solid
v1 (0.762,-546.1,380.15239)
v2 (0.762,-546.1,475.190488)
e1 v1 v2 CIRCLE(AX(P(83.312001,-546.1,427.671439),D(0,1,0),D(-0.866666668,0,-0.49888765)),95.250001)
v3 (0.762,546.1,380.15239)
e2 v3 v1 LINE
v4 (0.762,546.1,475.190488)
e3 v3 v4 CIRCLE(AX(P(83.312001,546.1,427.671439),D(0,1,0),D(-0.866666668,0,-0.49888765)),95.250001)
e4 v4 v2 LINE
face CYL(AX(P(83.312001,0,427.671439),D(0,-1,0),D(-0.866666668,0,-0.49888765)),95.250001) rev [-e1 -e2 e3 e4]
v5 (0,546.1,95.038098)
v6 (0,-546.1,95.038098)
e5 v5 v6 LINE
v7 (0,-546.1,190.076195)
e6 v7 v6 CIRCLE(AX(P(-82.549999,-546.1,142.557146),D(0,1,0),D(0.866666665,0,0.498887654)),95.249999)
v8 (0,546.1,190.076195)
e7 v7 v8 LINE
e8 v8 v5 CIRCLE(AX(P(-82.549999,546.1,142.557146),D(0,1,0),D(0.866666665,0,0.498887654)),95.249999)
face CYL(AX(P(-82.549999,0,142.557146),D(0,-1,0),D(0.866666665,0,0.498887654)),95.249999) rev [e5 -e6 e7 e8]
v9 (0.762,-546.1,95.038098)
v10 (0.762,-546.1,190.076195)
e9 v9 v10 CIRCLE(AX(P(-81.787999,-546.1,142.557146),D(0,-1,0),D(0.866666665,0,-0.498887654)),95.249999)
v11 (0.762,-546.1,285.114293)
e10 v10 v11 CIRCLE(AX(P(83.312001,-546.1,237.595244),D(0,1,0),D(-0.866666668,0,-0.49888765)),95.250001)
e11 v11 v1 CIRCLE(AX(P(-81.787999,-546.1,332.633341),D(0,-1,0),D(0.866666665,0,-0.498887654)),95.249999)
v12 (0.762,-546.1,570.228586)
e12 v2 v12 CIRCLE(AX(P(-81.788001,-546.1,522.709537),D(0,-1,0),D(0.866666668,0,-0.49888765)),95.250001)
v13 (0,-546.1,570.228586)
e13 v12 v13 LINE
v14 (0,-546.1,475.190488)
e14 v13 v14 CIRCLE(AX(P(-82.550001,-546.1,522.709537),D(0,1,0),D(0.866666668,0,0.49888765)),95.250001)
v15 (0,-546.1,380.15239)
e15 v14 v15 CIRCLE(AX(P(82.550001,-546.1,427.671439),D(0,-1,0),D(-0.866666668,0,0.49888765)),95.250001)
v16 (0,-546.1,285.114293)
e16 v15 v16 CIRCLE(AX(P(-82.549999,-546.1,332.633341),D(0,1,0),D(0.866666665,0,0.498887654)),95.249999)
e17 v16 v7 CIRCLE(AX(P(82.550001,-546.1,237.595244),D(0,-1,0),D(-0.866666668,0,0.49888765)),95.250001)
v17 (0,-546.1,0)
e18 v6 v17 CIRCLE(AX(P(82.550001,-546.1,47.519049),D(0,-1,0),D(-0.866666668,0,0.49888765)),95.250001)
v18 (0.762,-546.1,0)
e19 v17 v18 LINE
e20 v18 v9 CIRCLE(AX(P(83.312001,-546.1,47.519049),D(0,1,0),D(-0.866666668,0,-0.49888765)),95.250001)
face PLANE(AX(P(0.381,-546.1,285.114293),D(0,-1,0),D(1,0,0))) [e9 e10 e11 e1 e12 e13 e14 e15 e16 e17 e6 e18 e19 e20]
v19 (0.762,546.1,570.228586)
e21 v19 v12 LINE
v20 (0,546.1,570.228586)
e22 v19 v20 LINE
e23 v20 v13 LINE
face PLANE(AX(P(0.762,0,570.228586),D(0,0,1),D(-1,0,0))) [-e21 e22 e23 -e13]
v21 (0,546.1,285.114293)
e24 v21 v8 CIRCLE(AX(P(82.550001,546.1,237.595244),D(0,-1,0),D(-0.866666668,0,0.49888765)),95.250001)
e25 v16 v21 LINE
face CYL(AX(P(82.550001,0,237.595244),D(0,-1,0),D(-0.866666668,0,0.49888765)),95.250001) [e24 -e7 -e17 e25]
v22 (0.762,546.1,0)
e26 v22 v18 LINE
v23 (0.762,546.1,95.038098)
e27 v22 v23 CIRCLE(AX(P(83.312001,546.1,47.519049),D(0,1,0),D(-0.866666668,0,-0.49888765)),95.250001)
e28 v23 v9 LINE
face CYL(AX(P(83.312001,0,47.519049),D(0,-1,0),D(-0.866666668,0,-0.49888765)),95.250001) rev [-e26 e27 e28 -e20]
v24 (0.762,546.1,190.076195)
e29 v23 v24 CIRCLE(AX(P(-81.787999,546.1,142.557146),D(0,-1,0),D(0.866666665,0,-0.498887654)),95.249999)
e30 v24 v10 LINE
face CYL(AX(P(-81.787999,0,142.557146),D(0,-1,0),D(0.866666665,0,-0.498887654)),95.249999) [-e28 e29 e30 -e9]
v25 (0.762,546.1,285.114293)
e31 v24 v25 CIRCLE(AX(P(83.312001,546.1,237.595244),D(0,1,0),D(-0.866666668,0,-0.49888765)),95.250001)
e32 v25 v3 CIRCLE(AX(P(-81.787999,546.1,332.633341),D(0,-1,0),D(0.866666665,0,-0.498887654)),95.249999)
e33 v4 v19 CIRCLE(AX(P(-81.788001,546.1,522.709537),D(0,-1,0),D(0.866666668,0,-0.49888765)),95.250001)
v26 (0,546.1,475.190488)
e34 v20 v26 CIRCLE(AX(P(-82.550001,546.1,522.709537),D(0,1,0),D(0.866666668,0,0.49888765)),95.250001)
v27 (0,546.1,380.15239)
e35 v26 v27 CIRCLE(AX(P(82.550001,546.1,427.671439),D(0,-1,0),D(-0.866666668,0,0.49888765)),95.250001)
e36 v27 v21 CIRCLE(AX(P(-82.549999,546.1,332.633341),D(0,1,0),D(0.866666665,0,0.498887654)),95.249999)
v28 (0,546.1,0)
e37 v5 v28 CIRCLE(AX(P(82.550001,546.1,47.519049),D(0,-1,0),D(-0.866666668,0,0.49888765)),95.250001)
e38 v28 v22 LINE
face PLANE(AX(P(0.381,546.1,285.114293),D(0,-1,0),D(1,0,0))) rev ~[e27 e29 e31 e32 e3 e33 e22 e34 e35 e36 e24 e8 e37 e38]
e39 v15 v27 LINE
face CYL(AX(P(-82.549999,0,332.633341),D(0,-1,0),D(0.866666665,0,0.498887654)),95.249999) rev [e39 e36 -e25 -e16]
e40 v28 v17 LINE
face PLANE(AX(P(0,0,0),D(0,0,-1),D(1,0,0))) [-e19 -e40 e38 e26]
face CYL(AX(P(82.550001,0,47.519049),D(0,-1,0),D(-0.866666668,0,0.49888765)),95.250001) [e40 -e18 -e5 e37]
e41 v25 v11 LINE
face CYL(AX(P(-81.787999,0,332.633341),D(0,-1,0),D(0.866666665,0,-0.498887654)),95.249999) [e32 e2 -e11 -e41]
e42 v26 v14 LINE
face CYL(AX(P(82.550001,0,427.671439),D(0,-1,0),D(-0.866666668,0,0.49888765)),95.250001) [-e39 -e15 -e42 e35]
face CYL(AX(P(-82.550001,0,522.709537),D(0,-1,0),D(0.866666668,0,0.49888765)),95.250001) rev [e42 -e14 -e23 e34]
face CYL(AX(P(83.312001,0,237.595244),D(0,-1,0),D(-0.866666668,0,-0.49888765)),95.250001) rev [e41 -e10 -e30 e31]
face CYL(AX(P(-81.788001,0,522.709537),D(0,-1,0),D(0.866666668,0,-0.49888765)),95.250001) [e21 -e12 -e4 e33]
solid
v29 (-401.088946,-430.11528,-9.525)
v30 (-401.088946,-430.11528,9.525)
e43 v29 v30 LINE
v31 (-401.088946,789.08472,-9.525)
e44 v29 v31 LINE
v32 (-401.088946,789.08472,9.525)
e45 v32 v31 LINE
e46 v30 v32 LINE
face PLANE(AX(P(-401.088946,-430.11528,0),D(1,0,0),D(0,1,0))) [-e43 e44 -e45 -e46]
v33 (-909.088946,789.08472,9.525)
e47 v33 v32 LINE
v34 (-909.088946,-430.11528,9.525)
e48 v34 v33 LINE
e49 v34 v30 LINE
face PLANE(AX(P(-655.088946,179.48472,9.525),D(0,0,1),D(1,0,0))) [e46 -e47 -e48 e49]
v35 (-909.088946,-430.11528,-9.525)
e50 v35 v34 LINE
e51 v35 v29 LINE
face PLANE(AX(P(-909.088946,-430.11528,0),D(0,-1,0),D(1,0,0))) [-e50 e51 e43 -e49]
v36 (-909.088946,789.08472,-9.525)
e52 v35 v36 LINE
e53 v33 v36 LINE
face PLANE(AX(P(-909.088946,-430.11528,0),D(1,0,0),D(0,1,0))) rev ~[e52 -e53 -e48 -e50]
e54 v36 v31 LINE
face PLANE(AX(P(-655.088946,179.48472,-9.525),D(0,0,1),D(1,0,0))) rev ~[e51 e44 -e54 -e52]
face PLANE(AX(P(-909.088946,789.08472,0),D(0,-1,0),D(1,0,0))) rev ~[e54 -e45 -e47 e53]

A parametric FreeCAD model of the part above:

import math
import FreeCAD as App
import Part
import Sketcher
from FreeCAD import Vector
Q = App.Units.Quantity

doc = App.newDocument("Part")
body = doc.addObject("PartDesign::Body", "Body")

sketch1 = body.newObject("Sketcher::SketchObject", "Sketch")
sketch1.AttachmentSupport = (doc.getObject("XZ_Plane"), [""])
sketch1.MapMode = "FlatFace"
sketch1.addGeometry([
    Part.ArcOfCircle(Part.Circle(Vector(-82.5, 142.6, 0), Vector(0, 0, 1), 95.2), math.radians(-30), math.radians(30)),
    Part.ArcOfCircle(Part.Circle(Vector(82.6, 47.5, 0), Vector(0, 0, 1), 95.3), math.radians(150), math.radians(210)),
    Part.LineSegment(Vector(0, 0, 0), Vector(0.8, 0, 0)),
    Part.ArcOfCircle(Part.Circle(Vector(83.3, 47.5, 0), Vector(0, 0, 1), 95.3), math.radians(150), math.radians(210)),
    Part.ArcOfCircle(Part.Circle(Vector(-81.8, 142.6, 0), Vector(0, 0, 1), 95.2), math.radians(-30), math.radians(30)),
    Part.ArcOfCircle(Part.Circle(Vector(83.3, 237.6, 0), Vector(0, 0, 1), 95.3), math.radians(150), math.radians(210)),
    Part.ArcOfCircle(Part.Circle(Vector(-81.8, 332.6, 0), Vector(0, 0, 1), 95.2), math.radians(-30), math.radians(30)),
    Part.ArcOfCircle(Part.Circle(Vector(83.3, 427.7, 0), Vector(0, 0, 1), 95.3), math.radians(150), math.radians(210)),
    Part.ArcOfCircle(Part.Circle(Vector(-81.8, 522.7, 0), Vector(0, 0, 1), 95.3), math.radians(-30), math.radians(30)),
    Part.LineSegment(Vector(0.8, 570.2, 0), Vector(0, 570.2, 0)),
    Part.ArcOfCircle(Part.Circle(Vector(-82.6, 522.7, 0), Vector(0, 0, 1), 95.3), math.radians(-30), math.radians(30)),
    Part.ArcOfCircle(Part.Circle(Vector(82.6, 427.7, 0), Vector(0, 0, 1), 95.3), math.radians(150), math.radians(210)),
    Part.ArcOfCircle(Part.Circle(Vector(-82.5, 332.6, 0), Vector(0, 0, 1), 95.2), math.radians(-30), math.radians(30)),
    Part.ArcOfCircle(Part.Circle(Vector(82.6, 237.6, 0), Vector(0, 0, 1), 95.3), math.radians(150), math.radians(210)),
], False)
sketch1.addConstraint([
    Sketcher.Constraint("Tangent", 0, 1, 1, 1),
    Sketcher.Constraint("Coincident", 1, 2, 2, 1),
    Sketcher.Constraint("Coincident", 2, 2, 3, 2),
    Sketcher.Constraint("Tangent", 3, 1, 4, 1),
    Sketcher.Constraint("Tangent", 4, 2, 5, 2),
    Sketcher.Constraint("Tangent", 5, 1, 6, 1),
    Sketcher.Constraint("Tangent", 6, 2, 7, 2),
    Sketcher.Constraint("Tangent", 7, 1, 8, 1),
    Sketcher.Constraint("Coincident", 8, 2, 9, 1),
    Sketcher.Constraint("Coincident", 9, 2, 10, 2),
    Sketcher.Constraint("Tangent", 10, 1, 11, 1),
    Sketcher.Constraint("Tangent", 11, 2, 12, 2),
    Sketcher.Constraint("Tangent", 12, 1, 13, 1),
    Sketcher.Constraint("Tangent", 13, 2, 0, 2),
    Sketcher.Constraint("Horizontal", 2),
    Sketcher.Constraint("Horizontal", 9),
    Sketcher.Constraint("Coincident", 1, 2, -1, 1),
    Sketcher.Constraint("Equal", 0, 1),
    Sketcher.Constraint("Equal", 1, 3),
    Sketcher.Constraint("Equal", 3, 4),
    Sketcher.Constraint("Equal", 4, 5),
    Sketcher.Constraint("Equal", 5, 6),
    Sketcher.Constraint("Equal", 6, 7),
    Sketcher.Constraint("Equal", 7, 8),
    Sketcher.Constraint("Equal", 8, 10),
    Sketcher.Constraint("Equal", 10, 11),
    Sketcher.Constraint("Equal", 11, 12),
    Sketcher.Constraint("Equal", 12, 13),
    Sketcher.Constraint("PointOnObject", 0, 1, -2),
    Sketcher.Constraint("PointOnObject", 9, 2, -2),
    Sketcher.Constraint("PointOnObject", 10, 1, -2),
    Sketcher.Constraint("PointOnObject", 11, 2, -2),
    Sketcher.Constraint("PointOnObject", 12, 1, -2),
    Sketcher.Constraint("Horizontal", 1, 3, 3, 3),
    Sketcher.Constraint("Horizontal", 0, 3, 4, 3),
    Sketcher.Constraint("Horizontal", 8, 3, 10, 3),
    Sketcher.Constraint("Horizontal", 7, 3, 11, 3),
    Sketcher.Constraint("Horizontal", 6, 3, 12, 3),
    Sketcher.Constraint("Horizontal", 5, 3, 13, 3),
    Sketcher.Constraint("Vertical", 3, 3, 5, 3),
    Sketcher.Constraint("Radius", 0, Q("3.75 in")),
    Sketcher.Constraint("DistanceX", 2, 1, 2, 2, Q("0.03 in")),
    Sketcher.Constraint("DistanceX", 0, 3, 1, 3, Q("6.5 in")),
])
pad1 = body.newObject("PartDesign::Pad", "Pad")
pad1.Profile = sketch1
pad1.Length = Q("43 in")
pad1.Midplane = True
body2 = doc.addObject("PartDesign::Body", "Body001")

sketch2 = body2.newObject("Sketcher::SketchObject", "Sketch001")
sketch2.AttachmentSupport = (doc.getObject("XY_Plane001"), [""])
sketch2.MapMode = "FlatFace"
sketch2.addGeometry([
    Part.LineSegment(Vector(-909, 789, 0), Vector(-909, -430, 0)),
    Part.LineSegment(Vector(-909, -430, 0), Vector(-401, -430, 0)),
    Part.LineSegment(Vector(-401, -430, 0), Vector(-401, 789, 0)),
    Part.LineSegment(Vector(-401, 789, 0), Vector(-909, 789, 0)),
], False)
sketch2.addConstraint([
    Sketcher.Constraint("Coincident", 0, 2, 1, 1),
    Sketcher.Constraint("Coincident", 1, 2, 2, 1),
    Sketcher.Constraint("Coincident", 2, 2, 3, 1),
    Sketcher.Constraint("Coincident", 3, 2, 0, 1),
    Sketcher.Constraint("Vertical", 0),
    Sketcher.Constraint("Horizontal", 1),
    Sketcher.Constraint("Vertical", 2),
    Sketcher.Constraint("Horizontal", 3),
    Sketcher.Constraint("DistanceX", 1, 1, 1, 2, Q("20 in")),
    Sketcher.Constraint("DistanceY", 0, 2, 0, 1, Q("48 in")),
    Sketcher.Constraint("DistanceY", 0, 2, -1, 1, Q("430.11528 mm")),
    Sketcher.Constraint("DistanceX", 0, 2, -1, 1, Q("909.088946 mm")),
])
pad2 = body2.newObject("PartDesign::Pad", "Pad001")
pad2.Profile = sketch2
pad2.Length = Q("0.75 in")
pad2.Midplane = True

doc.recompute()
